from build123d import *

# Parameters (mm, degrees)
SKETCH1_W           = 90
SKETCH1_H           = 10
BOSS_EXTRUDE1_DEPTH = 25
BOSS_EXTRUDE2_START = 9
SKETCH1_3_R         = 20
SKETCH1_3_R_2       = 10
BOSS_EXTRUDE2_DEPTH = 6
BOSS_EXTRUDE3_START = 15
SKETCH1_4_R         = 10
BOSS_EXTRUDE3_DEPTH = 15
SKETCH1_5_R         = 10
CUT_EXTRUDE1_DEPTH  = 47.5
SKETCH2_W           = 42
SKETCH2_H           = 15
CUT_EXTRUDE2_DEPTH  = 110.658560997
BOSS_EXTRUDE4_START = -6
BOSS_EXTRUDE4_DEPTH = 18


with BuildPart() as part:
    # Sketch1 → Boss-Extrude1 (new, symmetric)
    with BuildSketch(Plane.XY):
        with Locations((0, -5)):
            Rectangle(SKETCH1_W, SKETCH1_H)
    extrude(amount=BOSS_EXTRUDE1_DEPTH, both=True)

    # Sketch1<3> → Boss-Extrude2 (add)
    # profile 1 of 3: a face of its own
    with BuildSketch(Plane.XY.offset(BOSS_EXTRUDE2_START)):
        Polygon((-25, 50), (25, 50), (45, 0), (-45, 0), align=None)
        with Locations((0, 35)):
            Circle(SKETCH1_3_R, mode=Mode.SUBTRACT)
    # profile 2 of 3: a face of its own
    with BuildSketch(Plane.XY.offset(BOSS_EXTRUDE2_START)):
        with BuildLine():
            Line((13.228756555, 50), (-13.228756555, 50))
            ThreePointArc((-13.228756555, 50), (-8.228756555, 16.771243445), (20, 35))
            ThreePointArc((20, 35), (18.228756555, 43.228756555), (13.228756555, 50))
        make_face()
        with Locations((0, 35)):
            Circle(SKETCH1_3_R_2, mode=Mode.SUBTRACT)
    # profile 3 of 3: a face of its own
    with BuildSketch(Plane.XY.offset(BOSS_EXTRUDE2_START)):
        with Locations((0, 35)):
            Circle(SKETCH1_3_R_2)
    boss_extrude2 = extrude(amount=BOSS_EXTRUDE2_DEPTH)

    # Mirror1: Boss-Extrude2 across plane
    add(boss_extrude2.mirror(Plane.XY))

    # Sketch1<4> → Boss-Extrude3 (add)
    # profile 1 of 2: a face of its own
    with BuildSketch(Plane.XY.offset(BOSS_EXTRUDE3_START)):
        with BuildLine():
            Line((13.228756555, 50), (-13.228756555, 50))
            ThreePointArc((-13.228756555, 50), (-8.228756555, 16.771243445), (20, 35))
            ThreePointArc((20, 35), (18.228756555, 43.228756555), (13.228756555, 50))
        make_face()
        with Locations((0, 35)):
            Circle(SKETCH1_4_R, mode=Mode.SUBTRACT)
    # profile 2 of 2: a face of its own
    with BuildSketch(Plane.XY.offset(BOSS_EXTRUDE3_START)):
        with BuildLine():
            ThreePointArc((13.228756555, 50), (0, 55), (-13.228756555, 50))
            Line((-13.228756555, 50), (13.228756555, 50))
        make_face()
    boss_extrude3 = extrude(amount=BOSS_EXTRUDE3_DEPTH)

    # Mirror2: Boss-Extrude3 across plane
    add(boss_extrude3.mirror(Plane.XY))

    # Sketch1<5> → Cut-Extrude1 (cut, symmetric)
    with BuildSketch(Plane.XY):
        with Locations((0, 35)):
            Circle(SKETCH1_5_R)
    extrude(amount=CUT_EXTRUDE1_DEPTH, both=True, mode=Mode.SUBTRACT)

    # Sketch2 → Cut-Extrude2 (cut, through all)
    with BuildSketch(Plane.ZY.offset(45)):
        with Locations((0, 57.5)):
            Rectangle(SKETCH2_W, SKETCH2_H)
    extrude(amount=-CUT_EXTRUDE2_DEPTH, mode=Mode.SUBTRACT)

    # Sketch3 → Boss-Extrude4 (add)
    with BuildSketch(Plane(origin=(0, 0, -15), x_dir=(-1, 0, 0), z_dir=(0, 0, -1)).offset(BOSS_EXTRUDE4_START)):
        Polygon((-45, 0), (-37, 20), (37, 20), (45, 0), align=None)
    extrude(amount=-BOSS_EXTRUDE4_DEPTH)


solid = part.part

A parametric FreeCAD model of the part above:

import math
import FreeCAD as App
import Part
import Sketcher
from FreeCAD import Vector
Q = App.Units.Quantity


def add_polygon(sketch, points):
    """Adds a closed chain of lines whose ends are joined by coincident constraints."""
    first, n = sketch.GeometryCount, len(points)
    for a, b in zip(points, points[1:] + points[:1]):
        sketch.addGeometry(Part.LineSegment(App.Vector(*a, 0), App.Vector(*b, 0)), False)
    for i in range(n):
        sketch.addConstraint(Sketcher.Constraint("Coincident", first + i, 2, first + (i + 1) % n, 1))

doc = App.newDocument("Part")
body = doc.addObject("PartDesign::Body", "Body")

# Sketch on XY plane
sketch1 = body.newObject("Sketcher::SketchObject", "Sketch")
sketch1.AttachmentSupport = (doc.getObject("XY_Plane"), [""])
sketch1.MapMode = "FlatFace"
add_polygon(sketch1, [(-45, 0), (-45, -10), (45, -10), (45, 0)])  # lines 0-3
sketch1.addConstraint([
    Sketcher.Constraint("Vertical", 0),
    Sketcher.Constraint("Horizontal", 1),
    Sketcher.Constraint("Vertical", 2),
    Sketcher.Constraint("Horizontal", 3),
    Sketcher.Constraint("Symmetric", 2, 2, 3, 2, -1, 1),
    Sketcher.Constraint("DistanceX", 1, 1, 1, 2, Q("90 mm")),
    Sketcher.Constraint("DistanceY", 0, 2, 0, 1, Q("10 mm")),
])
pad1 = body.newObject("PartDesign::Pad", "Pad")
pad1.Profile = sketch1
pad1.Length = 50
pad1.Midplane = True

# Sketch on XY plane
sketch2 = body.newObject("Sketcher::SketchObject", "Sketch001")
sketch2.AttachmentSupport = (doc.getObject("XY_Plane"), [""])
sketch2.MapMode = "FlatFace"
sketch2.AttachmentOffset = App.Placement(Vector(0, 0, 9), App.Rotation())
add_polygon(sketch2, [(-25, 50), (-45, 0), (45, 0), (25, 50)])  # lines 0-3
sketch2.addConstraint([
    Sketcher.Constraint("Horizontal", 1),
    Sketcher.Constraint("Horizontal", 3),
    Sketcher.Constraint("Symmetric", 0, 2, 1, 2, -1, 1),
    Sketcher.Constraint("Equal", 0, 2),
    Sketcher.Constraint("DistanceX", 1, 1, 1, 2, Q("90 mm")),
    Sketcher.Constraint("DistanceX", 3, 2, 3, 1, Q("50 mm")),
    Sketcher.Constraint("DistanceY", -1, 1, 2, 2, Q("50 mm")),
])
pad2 = body.newObject("PartDesign::Pad", "Pad001")
pad2.Profile = sketch2
pad2.Length = 6
doc.recompute()

mirrored = body.newObject("PartDesign::Mirrored", "Mirrored")
mirrored.Originals = [pad2]
mirrored.MirrorPlane = (doc.getObject("XY_Plane"), [""])
body.Tip = mirrored

# Sketch on XY plane
sketch3 = body.newObject("Sketcher::SketchObject", "Sketch002")
sketch3.AttachmentSupport = (doc.getObject("XY_Plane"), [""])
sketch3.MapMode = "FlatFace"
sketch3.AttachmentOffset = App.Placement(Vector(0, 0, 15), App.Rotation())
sketch3.addGeometry([
    Part.ArcOfCircle(Part.Circle(Vector(0, 35, 0), Vector(0, 0, 1), 20), math.radians(0), math.radians(49)),
    Part.ArcOfCircle(Part.Circle(Vector(0, 35, 0), Vector(0, 0, 1), 20), math.radians(49), math.radians(131)),
    Part.ArcOfCircle(Part.Circle(Vector(0, 35, 0), Vector(0, 0, 1), 20), math.radians(131), math.radians(360)),
    Part.Circle(Vector(0, 35, 0), Vector(0, 0, 1), 10),
], False)
sketch3.addConstraint([
    Sketcher.Constraint("Tangent", 0, 2, 1, 1),
    Sketcher.Constraint("Tangent", 1, 2, 2, 1),
    Sketcher.Constraint("Tangent", 2, 2, 0, 1),
    Sketcher.Constraint("Coincident", 3, 3, 0, 3),
    Sketcher.Constraint("Symmetric", 0, 2, 1, 2, -2),
    Sketcher.Constraint("Horizontal", 3, 3, 2, 2),
    Sketcher.Constraint("Diameter", 3, Q("20 mm")),
    Sketcher.Constraint("Radius", 0, Q("20 mm")),
    Sketcher.Constraint("DistanceY", -1, 1, 0, 3, Q("35 mm")),
    Sketcher.Constraint("DistanceY", -1, 1, 0, 2, Q("50 mm")),
])
pad3 = body.newObject("PartDesign::Pad", "Pad002")
pad3.Profile = sketch3
pad3.Length = 15
doc.recompute()

mirrored2 = body.newObject("PartDesign::Mirrored", "Mirrored001")
mirrored2.Originals = [pad3]
mirrored2.MirrorPlane = (doc.getObject("XY_Plane"), [""])
body.Tip = mirrored2

# Sketch on XY plane
sketch4 = body.newObject("Sketcher::SketchObject", "Sketch003")
sketch4.AttachmentSupport = (doc.getObject("XY_Plane"), [""])
sketch4.MapMode = "FlatFace"
sketch4.addGeometry(Part.Circle(Vector(0, 35, 0), Vector(0, 0, 1), 10), False)
sketch4.addConstraint([
    Sketcher.Constraint("PointOnObject", 0, 3, -2),
    Sketcher.Constraint("Diameter", 0, Q("20 mm")),
    Sketcher.Constraint("DistanceY", -1, 1, 0, 3, Q("35 mm")),
])
pocket1 = body.newObject("PartDesign::Pocket", "Pocket")
pocket1.Profile = sketch4
pocket1.Length = 95
pocket1.Midplane = True

# Sketch on YZ plane
sketch5 = body.newObject("Sketcher::SketchObject", "Sketch004")
sketch5.AttachmentSupport = (doc.getObject("YZ_Plane"), [""])
sketch5.MapMode = "FlatFace"
sketch5.AttachmentOffset = App.Placement(Vector(0, 0, -45), App.Rotation())
add_polygon(sketch5, [(65, -21), (50, -21), (50, 21), (65, 21)])  # lines 0-3
sketch5.addConstraint([
    Sketcher.Constraint("Horizontal", 0),
    Sketcher.Constraint("Vertical", 1),
    Sketcher.Constraint("Horizontal", 2),
    Sketcher.Constraint("Vertical", 3),
    Sketcher.Constraint("DistanceX", 0, 2, 0, 1, Q("15 mm")),
    Sketcher.Constraint("DistanceY", 1, 1, 1, 2, Q("42 mm")),
    Sketcher.Constraint("DistanceX", -1, 1, 0, 2, Q("50 mm")),
    Sketcher.Constraint("DistanceY", 0, 2, -1, 1, Q("21 mm")),
])
pocket2 = body.newObject("PartDesign::Pocket", "Pocket001")
pocket2.Profile = sketch5
pocket2.Type = "ThroughAll"
pocket2.Reversed = True

# Sketch on XY plane
sketch6 = body.newObject("Sketcher::SketchObject", "Sketch005")
sketch6.AttachmentSupport = (doc.getObject("XY_Plane"), [""])
sketch6.MapMode = "FlatFace"
sketch6.AttachmentOffset = App.Placement(Vector(0, 0, -9), App.Rotation())
add_polygon(sketch6, [(37, 20), (45, 0), (-45, 0), (-37, 20)])  # lines 0-3
sketch6.addConstraint([
    Sketcher.Constraint("Horizontal", 1),
    Sketcher.Constraint("Horizontal", 3),
    Sketcher.Constraint("Symmetric", 0, 2, 1, 2, -1, 1),
    Sketcher.Constraint("Equal", 0, 2),
    Sketcher.Constraint("DistanceX", 1, 2, 1, 1, Q("90 mm")),
    Sketcher.Constraint("DistanceX", 3, 1, 3, 2, Q("74 mm")),
    Sketcher.Constraint("DistanceY", -1, 1, 2, 2, Q("20 mm")),
])
pad4 = body.newObject("PartDesign::Pad", "Pad003")
pad4.Profile = sketch6
pad4.Length = 18

doc.recompute()
